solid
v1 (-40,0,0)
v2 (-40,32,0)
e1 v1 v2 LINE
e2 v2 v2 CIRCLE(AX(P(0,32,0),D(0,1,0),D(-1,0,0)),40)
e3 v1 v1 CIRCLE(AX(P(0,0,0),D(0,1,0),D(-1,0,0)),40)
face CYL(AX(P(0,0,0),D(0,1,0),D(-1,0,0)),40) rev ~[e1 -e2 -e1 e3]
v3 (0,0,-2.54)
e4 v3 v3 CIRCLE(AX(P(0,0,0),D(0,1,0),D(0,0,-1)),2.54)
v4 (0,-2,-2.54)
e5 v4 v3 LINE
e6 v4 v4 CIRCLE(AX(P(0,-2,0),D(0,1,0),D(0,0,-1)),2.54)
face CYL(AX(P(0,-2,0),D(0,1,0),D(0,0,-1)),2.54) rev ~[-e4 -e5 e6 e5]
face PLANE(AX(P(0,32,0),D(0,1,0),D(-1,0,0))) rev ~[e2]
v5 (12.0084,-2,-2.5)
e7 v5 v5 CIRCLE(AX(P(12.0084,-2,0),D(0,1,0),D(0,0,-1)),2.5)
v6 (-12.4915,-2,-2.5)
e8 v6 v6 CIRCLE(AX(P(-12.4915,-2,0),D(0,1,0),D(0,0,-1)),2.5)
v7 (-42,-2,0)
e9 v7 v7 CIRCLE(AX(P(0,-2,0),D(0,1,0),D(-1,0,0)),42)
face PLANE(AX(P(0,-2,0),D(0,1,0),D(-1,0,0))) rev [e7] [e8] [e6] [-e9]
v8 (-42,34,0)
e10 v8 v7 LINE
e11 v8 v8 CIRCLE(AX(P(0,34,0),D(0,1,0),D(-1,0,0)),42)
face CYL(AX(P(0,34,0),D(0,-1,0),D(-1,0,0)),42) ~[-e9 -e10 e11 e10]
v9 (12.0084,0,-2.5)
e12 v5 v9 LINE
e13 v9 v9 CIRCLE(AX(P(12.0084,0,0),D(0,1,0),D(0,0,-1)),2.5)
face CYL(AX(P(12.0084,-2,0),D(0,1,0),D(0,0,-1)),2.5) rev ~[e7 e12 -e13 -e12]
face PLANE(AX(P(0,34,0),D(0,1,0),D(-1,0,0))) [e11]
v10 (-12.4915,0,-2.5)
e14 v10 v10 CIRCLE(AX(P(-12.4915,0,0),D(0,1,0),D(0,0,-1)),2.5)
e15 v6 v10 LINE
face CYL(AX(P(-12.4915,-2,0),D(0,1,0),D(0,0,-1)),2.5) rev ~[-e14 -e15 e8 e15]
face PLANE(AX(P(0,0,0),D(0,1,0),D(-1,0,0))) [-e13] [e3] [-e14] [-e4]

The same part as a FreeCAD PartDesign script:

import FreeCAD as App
import Part
import Sketcher
from FreeCAD import Vector
Q = App.Units.Quantity


def add_polygon(sketch, points):
    """Adds a closed chain of lines whose ends are joined by coincident constraints."""
    first, n = sketch.GeometryCount, len(points)
    for a, b in zip(points, points[1:] + points[:1]):
        sketch.addGeometry(Part.LineSegment(App.Vector(*a, 0), App.Vector(*b, 0)), False)
    for i in range(n):
        sketch.addConstraint(Sketcher.Constraint("Coincident", first + i, 2, first + (i + 1) % n, 1))

doc = App.newDocument("Part")
body = doc.addObject("PartDesign::Body", "Body")

sketch1 = body.newObject("Sketcher::SketchObject", "Sketch")
sketch1.AttachmentSupport = (doc.getObject("XY_Plane"), [""])
sketch1.MapMode = "FlatFace"
add_polygon(sketch1, [(0, 0), (-40, 0), (-40, 32), (0, 32), (0, 34), (-42, 34), (-42, -2), (0, -2)])
sketch1.addConstraint(Sketcher.Constraint("Horizontal", 0))
sketch1.addConstraint(Sketcher.Constraint("Vertical", 1))
sketch1.addConstraint(Sketcher.Constraint("Horizontal", 2))
sketch1.addConstraint(Sketcher.Constraint("Vertical", 3))
sketch1.addConstraint(Sketcher.Constraint("Horizontal", 4))
sketch1.addConstraint(Sketcher.Constraint("Vertical", 5))
sketch1.addConstraint(Sketcher.Constraint("Horizontal", 6))
sketch1.addConstraint(Sketcher.Constraint("Vertical", 7))
sketch1.addConstraint(Sketcher.Constraint("Coincident", 7, 2, -1, 1))
sketch1.addConstraint(Sketcher.Constraint("PointOnObject", 2, 2, -2))
sketch1.addConstraint(Sketcher.Constraint("Equal", 3, 7))
sketch1.addConstraint(Sketcher.Constraint("DistanceX", 0, 2, 0, 1, Q("40 mm")))
sketch1.addConstraint(Sketcher.Constraint("DistanceY", 1, 1, 1, 2, Q("32 mm")))
sketch1.addConstraint(Sketcher.Constraint("DistanceY", 3, 1, 3, 2, Q("2 mm")))
sketch1.addConstraint(Sketcher.Constraint("DistanceX", 4, 2, 1, 2, Q("2 mm")))
revolution = body.newObject("PartDesign::Revolution", "Revolution")
revolution.Profile = sketch1
revolution.ReferenceAxis = (sketch1, ["V_Axis"])
revolution.Angle = 360

sketch2 = body.newObject("Sketcher::SketchObject", "Sketch001")
sketch2.AttachmentSupport = (doc.getObject("XZ_Plane"), [""])
sketch2.MapMode = "FlatFace"
sketch2.AttachmentOffset = App.Placement(Vector(0, 0, 2), App.Rotation())
sketch2.addGeometry(Part.Circle(Vector(0, 0, 0), Vector(0, 0, 1), 2.5), False)
sketch2.addConstraint(Sketcher.Constraint("Coincident", 0, 3, -1, 1))
sketch2.addConstraint(Sketcher.Constraint("Diameter", 0, Q("5.08 mm")))
doc.recompute()
hole = body.newObject("PartDesign::Hole", "Hole")
hole.Profile = sketch2
hole.ThreadType = "None"
hole.Diameter = 5.08
hole.DepthType = "Dimension"
hole.Depth = 2
hole.DrillPoint = "Flat"

sketch3 = body.newObject("Sketcher::SketchObject", "Sketch002")
sketch3.AttachmentSupport = (doc.getObject("XZ_Plane"), [""])
sketch3.MapMode = "FlatFace"
sketch3.AttachmentOffset = App.Placement(Vector(0, 0, 2), App.Rotation())
sketch3.addGeometry(Part.Circle(Vector(-12.5, 0, 0), Vector(0, 0, 1), 2.5), False)
sketch3.addGeometry(Part.Circle(Vector(12, 0, 0), Vector(0, 0, 1), 2.5), False)
sketch3.addConstraint(Sketcher.Constraint("Equal", 0, 1))
sketch3.addConstraint(Sketcher.Constraint("PointOnObject", 0, 3, -1))
sketch3.addConstraint(Sketcher.Constraint("PointOnObject", 1, 3, -1))
sketch3.addConstraint(Sketcher.Constraint("Diameter", 0, Q("5 mm")))
sketch3.addConstraint(Sketcher.Constraint("DistanceX", 0, 3, 1, 3, Q("24.5 mm")))
sketch3.addConstraint(Sketcher.Constraint("DistanceX", 0, 3, -1, 1, Q("12.4915 mm")))
doc.recompute()
hole2 = body.newObject("PartDesign::Hole", "Hole001")
hole2.Profile = sketch3
hole2.ThreadType = "None"
hole2.Diameter = 5
hole2.DepthType = "Dimension"
hole2.Depth = 2
hole2.DrillPoint = "Flat"

doc.recompute()
